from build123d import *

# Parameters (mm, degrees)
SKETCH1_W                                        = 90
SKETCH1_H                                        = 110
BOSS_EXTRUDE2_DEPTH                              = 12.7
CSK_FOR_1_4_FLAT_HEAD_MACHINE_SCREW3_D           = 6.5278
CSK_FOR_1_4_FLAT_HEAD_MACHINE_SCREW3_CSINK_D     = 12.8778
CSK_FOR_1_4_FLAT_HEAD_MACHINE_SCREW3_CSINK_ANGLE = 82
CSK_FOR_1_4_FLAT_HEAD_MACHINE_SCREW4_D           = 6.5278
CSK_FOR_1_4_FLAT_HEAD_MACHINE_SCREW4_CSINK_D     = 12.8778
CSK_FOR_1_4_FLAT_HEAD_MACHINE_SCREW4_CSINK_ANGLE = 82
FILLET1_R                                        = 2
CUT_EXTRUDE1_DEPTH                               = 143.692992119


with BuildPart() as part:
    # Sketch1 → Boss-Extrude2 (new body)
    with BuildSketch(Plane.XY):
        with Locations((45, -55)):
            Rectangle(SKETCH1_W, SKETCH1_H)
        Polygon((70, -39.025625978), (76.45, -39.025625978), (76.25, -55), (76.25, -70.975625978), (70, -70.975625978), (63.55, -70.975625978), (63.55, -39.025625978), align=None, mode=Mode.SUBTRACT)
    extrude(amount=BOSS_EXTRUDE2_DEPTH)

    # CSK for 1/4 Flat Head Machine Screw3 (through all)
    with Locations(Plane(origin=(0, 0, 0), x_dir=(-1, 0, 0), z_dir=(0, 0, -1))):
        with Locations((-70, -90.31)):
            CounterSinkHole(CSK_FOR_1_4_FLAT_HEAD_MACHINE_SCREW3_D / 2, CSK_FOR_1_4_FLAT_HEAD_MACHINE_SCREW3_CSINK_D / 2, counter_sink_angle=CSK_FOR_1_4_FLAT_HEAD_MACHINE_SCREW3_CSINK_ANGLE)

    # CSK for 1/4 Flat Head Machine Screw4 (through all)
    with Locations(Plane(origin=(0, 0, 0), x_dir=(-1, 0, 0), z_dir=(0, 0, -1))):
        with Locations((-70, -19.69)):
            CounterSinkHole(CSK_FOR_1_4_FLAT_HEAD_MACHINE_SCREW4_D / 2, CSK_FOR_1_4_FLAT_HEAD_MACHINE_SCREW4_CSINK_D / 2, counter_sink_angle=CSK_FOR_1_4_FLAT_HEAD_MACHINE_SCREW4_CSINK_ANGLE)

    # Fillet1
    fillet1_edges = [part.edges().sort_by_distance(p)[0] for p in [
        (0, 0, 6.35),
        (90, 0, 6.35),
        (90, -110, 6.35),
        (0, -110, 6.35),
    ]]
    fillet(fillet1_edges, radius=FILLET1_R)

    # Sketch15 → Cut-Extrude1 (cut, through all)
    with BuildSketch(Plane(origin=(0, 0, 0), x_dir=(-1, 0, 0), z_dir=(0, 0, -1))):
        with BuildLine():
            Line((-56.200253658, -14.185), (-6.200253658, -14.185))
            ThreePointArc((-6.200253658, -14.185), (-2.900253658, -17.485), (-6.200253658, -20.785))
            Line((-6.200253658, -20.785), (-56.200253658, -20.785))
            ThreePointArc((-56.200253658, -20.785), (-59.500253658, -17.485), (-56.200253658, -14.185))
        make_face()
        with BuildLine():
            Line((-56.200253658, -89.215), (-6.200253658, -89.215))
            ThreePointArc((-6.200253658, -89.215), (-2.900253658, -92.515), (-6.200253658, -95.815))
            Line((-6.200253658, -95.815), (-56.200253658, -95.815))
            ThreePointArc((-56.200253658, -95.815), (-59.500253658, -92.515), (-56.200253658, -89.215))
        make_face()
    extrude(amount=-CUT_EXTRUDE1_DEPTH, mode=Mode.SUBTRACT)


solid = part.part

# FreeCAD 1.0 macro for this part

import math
import FreeCAD as App
import Part
import Sketcher
from FreeCAD import Vector


def edges_at(feature, points):
    """Names of the edges that pass closest to the given points."""
    edges = feature.Shape.Edges
    near = lambda p: min(range(len(edges)), key=lambda i: edges[i].distToShape(Part.Vertex(*p))[0])
    return sorted({f"Edge{near(p) + 1}" for p in points})


def add_polygon(sketch, points):
    """Adds a closed chain of lines whose ends are joined by coincident constraints."""
    first, n = sketch.GeometryCount, len(points)
    for a, b in zip(points, points[1:] + points[:1]):
        sketch.addGeometry(Part.LineSegment(App.Vector(*a, 0), App.Vector(*b, 0)), False)
    for i in range(n):
        sketch.addConstraint(Sketcher.Constraint("Coincident", first + i, 2, first + (i + 1) % n, 1))

doc = App.newDocument("Part")
body = doc.addObject("PartDesign::Body", "Body")

# Sketch on XY plane
sketch1 = doc.addObject("Sketcher::SketchObject", "Sketch")
body.addObject(sketch1)
sketch1.AttachmentSupport = (doc.XY_Plane, [""])
sketch1.MapMode = "FlatFace"
add_polygon(sketch1, [(0, 0), (0, -110), (90, -110), (90, 0)])  # lines 0-3
add_polygon(sketch1, [(64, -39), (76, -39), (76, -55), (76, -71), (64, -71)])  # lines 4-8
sketch1.addConstraint([
    Sketcher.Constraint("Vertical", 0),
    Sketcher.Constraint("Horizontal", 1),
    Sketcher.Constraint("Vertical", 2),
    Sketcher.Constraint("Horizontal", 3),
    Sketcher.Constraint("Horizontal", 4),
    Sketcher.Constraint("Vertical", 6),
    Sketcher.Constraint("Horizontal", 7),
    Sketcher.Constraint("Vertical", 8),
    Sketcher.Constraint("Coincident", 3, 2, -1, 1),
    Sketcher.Constraint("DistanceX", 1, 1, 1, 2, 90.0),
    Sketcher.Constraint("DistanceY", 0, 2, 0, 1, 110.0),
    Sketcher.Constraint("DistanceX", 4, 1, 4, 2, 12.9),
    Sketcher.Constraint("DistanceX", 7, 2, 7, 1, 12.7),
    Sketcher.Constraint("DistanceY", 5, 2, -1, 1, 55.0),
    Sketcher.Constraint("DistanceY", 8, 1, 8, 2, 31.95),
    Sketcher.Constraint("DistanceX", -1, 1, 4, 2, 76.45),
    Sketcher.Constraint("DistanceY", 6, 2, 6, 1, 15.975626),
])
pad1 = doc.addObject("PartDesign::Pad", "Pad")
body.addObject(pad1)
pad1.Profile = sketch1
pad1.Length = 12.7

# Sketch on XY plane
sketch2 = doc.addObject("Sketcher::SketchObject", "Sketch001")
body.addObject(sketch2)
sketch2.AttachmentSupport = (doc.XY_Plane, [""])
sketch2.MapMode = "FlatFace"
sketch2.addGeometry(Part.Circle(Vector(70, -90.3, 0), Vector(0, 0, 1), 3.3), False)
sketch2.addConstraint([
    Sketcher.Constraint("DistanceX", -1, 1, 0, 3, 70.0),
    Sketcher.Constraint("Diameter", 0, 6.5278),
    Sketcher.Constraint("DistanceY", 0, 3, -1, 1, 90.31),
])
doc.recompute()
hole = doc.addObject("PartDesign::Hole", "Hole")
body.addObject(hole)
hole.Profile = sketch2
hole.ThreadType = "None"
hole.Diameter = 6.5278
hole.DepthType = "ThroughAll"
hole.HoleCutType = "Countersink"
hole.HoleCutDiameter = 12.8778
hole.HoleCutCountersinkAngle = 82
hole.Reversed = True

# Sketch on XY plane
sketch3 = doc.addObject("Sketcher::SketchObject", "Sketch002")
body.addObject(sketch3)
sketch3.AttachmentSupport = (doc.XY_Plane, [""])
sketch3.MapMode = "FlatFace"
sketch3.addGeometry(Part.Circle(Vector(70, -19.7, 0), Vector(0, 0, 1), 3.3), False)
sketch3.addConstraint([
    Sketcher.Constraint("DistanceX", -1, 1, 0, 3, 70.0),
    Sketcher.Constraint("Diameter", 0, 6.5278),
    Sketcher.Constraint("DistanceY", 0, 3, -1, 1, 19.69),
])
doc.recompute()
hole2 = doc.addObject("PartDesign::Hole", "Hole001")
body.addObject(hole2)
hole2.Profile = sketch3
hole2.ThreadType = "None"
hole2.Diameter = 6.5278
hole2.DepthType = "ThroughAll"
hole2.HoleCutType = "Countersink"
hole2.HoleCutDiameter = 12.8778
hole2.HoleCutCountersinkAngle = 82
hole2.Reversed = True
doc.recompute()

fillet = doc.addObject("PartDesign::Fillet", "Fillet")
body.addObject(fillet)
fillet.Base = (hole2, edges_at(hole2, [
    (0, 0, 6.35),
    (90, 0, 6.35),
    (90, -110, 6.35),
    (0, -110, 6.35),
]))
fillet.Radius = 2

# Sketch on XY plane
sketch4 = doc.addObject("Sketcher::SketchObject", "Sketch003")
body.addObject(sketch4)
sketch4.AttachmentSupport = (doc.XY_Plane, [""])
sketch4.MapMode = "FlatFace"
sketch4.addGeometry([
    Part.LineSegment(Vector(6.2, -14.2, 0), Vector(56.2, -14.2, 0)),  # 0
    Part.ArcOfCircle(Part.Circle(Vector(56.2, -17.5, 0), Vector(0, 0, 1), 3.3), math.radians(-90), math.radians(90)),  # 1
    Part.LineSegment(Vector(56.2, -20.8, 0), Vector(6.2, -20.8, 0)),  # 2
    Part.ArcOfCircle(Part.Circle(Vector(6.2, -17.5, 0), Vector(0, 0, 1), 3.3), math.radians(90), math.radians(270)),  # 3
    Part.LineSegment(Vector(6.2, -89.2, 0), Vector(56.2, -89.2, 0)),  # 4
    Part.ArcOfCircle(Part.Circle(Vector(56.2, -92.5, 0), Vector(0, 0, 1), 3.3), math.radians(-90), math.radians(90)),  # 5
    Part.LineSegment(Vector(56.2, -95.8, 0), Vector(6.2, -95.8, 0)),  # 6
    Part.ArcOfCircle(Part.Circle(Vector(6.2, -92.5, 0), Vector(0, 0, 1), 3.3), math.radians(90), math.radians(270)),  # 7
], False)
sketch4.addConstraint([
    Sketcher.Constraint("Tangent", 0, 2, 1, 2),
    Sketcher.Constraint("Tangent", 1, 1, 2, 1),
    Sketcher.Constraint("Tangent", 2, 2, 3, 2),
    Sketcher.Constraint("Tangent", 3, 1, 0, 1),
    Sketcher.Constraint("Tangent", 4, 2, 5, 2),
    Sketcher.Constraint("Tangent", 5, 1, 6, 1),
    Sketcher.Constraint("Tangent", 6, 2, 7, 2),
    Sketcher.Constraint("Tangent", 7, 1, 4, 1),
    Sketcher.Constraint("Horizontal", 0),
    Sketcher.Constraint("Horizontal", 2),
    Sketcher.Constraint("Horizontal", 4),
    Sketcher.Constraint("Horizontal", 6),
    Sketcher.Constraint("Equal", 3, 5),
    Sketcher.Constraint("Vertical", 1, 3, 5, 3),
    Sketcher.Constraint("Vertical", 3, 3, 7, 3),
    Sketcher.Constraint("Radius", 1, 3.3),
    Sketcher.Constraint("DistanceX", 0, 1, 0, 2, 50.0),
    Sketcher.Constraint("DistanceY", 5, 3, 1, 3, 75.03),
    Sketcher.Constraint("DistanceY", 1, 3, -1, 1, 17.485),
    Sketcher.Constraint("DistanceX", -1, 1, 1, 3, 56.200254),
])
pocket1 = doc.addObject("PartDesign::Pocket", "Pocket")
body.addObject(pocket1)
pocket1.Profile = sketch4
pocket1.Type = "ThroughAll"
pocket1.Reversed = True

doc.recompute()
